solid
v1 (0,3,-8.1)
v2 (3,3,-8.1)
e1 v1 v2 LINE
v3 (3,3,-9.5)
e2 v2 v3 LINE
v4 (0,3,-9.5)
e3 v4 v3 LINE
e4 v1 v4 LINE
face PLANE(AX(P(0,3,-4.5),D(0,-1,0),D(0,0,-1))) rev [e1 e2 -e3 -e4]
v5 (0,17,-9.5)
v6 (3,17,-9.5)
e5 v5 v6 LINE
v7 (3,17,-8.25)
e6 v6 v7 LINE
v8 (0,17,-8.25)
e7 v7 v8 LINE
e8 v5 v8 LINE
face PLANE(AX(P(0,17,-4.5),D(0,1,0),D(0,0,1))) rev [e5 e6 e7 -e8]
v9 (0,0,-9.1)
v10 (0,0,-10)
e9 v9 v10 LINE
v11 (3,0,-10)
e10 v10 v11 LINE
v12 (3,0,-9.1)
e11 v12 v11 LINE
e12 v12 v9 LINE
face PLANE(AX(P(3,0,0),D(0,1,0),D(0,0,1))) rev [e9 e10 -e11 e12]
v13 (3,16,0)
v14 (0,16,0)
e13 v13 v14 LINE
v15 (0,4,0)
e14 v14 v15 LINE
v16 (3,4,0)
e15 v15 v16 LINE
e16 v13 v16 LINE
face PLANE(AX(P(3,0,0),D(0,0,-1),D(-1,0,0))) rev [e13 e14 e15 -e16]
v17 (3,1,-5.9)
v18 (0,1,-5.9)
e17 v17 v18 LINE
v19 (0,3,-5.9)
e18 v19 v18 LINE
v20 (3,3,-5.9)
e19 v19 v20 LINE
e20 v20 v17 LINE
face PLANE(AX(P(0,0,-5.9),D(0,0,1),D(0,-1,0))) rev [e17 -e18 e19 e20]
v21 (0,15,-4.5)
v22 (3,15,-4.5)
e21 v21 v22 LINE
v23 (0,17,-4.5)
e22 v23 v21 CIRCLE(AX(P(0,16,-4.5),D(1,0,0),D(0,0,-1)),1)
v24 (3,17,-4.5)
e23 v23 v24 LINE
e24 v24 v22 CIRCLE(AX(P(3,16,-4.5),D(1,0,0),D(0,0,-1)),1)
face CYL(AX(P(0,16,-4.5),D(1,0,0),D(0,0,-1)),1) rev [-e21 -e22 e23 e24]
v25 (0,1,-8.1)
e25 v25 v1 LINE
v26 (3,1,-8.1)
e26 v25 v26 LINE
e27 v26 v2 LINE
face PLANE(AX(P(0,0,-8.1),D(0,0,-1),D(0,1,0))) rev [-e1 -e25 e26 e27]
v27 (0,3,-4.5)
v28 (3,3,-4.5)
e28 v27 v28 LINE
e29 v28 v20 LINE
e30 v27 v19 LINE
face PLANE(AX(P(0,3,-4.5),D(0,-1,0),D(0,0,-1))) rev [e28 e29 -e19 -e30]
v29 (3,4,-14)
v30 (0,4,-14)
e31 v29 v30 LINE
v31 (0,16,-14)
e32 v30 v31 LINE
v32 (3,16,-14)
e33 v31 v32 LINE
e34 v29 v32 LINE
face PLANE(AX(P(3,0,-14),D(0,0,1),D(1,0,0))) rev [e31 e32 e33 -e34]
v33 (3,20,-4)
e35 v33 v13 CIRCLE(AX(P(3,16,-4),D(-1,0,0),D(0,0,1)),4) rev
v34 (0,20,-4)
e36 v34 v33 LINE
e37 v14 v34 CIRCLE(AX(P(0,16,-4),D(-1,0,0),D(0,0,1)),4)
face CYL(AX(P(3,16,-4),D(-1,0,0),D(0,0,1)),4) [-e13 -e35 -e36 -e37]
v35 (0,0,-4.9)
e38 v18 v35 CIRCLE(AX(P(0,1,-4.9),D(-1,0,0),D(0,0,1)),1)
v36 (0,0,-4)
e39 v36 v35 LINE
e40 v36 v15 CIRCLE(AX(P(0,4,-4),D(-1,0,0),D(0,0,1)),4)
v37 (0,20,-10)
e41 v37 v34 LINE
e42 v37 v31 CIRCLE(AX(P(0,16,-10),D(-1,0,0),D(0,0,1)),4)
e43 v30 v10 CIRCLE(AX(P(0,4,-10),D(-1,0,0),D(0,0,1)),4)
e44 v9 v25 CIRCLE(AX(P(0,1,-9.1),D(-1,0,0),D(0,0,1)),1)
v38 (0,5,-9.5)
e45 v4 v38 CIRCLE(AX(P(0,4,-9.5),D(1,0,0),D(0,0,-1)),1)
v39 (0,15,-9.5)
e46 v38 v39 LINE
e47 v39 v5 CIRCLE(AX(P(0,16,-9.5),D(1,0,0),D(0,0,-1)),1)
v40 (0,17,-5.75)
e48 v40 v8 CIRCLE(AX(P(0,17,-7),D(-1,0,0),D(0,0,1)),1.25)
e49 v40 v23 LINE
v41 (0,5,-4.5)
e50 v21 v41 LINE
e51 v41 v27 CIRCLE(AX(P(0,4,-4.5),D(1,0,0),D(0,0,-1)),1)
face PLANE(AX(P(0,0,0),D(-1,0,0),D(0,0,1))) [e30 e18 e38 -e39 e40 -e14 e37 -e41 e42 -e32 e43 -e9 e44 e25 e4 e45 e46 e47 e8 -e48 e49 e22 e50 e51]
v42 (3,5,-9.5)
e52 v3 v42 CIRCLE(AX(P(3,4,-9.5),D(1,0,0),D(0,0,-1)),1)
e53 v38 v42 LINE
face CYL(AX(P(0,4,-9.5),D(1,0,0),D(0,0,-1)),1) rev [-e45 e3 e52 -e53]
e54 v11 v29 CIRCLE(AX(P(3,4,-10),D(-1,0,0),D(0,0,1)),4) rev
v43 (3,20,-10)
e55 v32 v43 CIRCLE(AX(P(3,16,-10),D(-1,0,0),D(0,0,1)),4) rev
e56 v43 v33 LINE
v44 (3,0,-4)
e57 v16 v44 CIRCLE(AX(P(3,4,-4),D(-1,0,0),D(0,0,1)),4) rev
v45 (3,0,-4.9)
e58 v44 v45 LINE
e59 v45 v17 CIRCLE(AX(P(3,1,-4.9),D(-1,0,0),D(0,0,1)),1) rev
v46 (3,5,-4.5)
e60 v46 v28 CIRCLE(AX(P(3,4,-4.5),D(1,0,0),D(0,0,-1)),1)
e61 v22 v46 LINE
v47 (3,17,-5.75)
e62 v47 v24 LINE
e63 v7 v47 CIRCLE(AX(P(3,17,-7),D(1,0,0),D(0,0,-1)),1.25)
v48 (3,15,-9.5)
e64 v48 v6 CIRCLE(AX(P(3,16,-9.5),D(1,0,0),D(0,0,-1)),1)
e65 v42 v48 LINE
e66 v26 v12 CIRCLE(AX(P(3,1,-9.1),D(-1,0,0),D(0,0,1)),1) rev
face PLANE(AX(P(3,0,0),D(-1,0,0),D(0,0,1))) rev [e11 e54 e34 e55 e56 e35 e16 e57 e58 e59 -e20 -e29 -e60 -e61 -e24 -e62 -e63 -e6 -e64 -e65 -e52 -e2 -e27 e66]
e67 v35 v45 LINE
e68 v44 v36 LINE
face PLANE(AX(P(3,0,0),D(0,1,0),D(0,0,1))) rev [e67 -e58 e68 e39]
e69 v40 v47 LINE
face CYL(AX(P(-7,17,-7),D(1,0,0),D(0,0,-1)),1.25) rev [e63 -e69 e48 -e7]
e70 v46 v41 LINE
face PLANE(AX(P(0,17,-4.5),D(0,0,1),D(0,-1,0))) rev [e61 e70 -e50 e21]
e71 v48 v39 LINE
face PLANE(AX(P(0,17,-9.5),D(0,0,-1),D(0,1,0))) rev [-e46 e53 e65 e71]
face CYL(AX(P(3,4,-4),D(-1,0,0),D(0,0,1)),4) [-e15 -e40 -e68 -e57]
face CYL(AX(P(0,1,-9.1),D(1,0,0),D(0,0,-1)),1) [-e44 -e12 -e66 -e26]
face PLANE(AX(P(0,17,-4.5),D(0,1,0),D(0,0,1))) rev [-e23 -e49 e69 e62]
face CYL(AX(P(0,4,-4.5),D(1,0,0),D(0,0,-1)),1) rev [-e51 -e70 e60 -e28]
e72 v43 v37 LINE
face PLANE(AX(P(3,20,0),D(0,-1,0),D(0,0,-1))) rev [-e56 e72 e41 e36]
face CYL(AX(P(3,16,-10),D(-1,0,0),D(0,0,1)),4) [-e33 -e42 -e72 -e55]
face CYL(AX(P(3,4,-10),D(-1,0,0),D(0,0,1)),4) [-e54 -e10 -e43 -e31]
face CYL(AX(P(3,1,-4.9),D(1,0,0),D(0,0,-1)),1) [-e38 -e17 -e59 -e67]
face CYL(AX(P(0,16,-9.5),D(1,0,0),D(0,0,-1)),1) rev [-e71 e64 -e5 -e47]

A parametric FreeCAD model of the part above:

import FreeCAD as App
import Part
import Sketcher
from FreeCAD import Vector
Q = App.Units.Quantity


def edges_at(feature, points):
    """Names of the edges that pass closest to the given points."""
    edges = feature.Shape.Edges
    near = lambda p: min(range(len(edges)), key=lambda i: edges[i].distToShape(Part.Vertex(*p))[0])
    return sorted({f"Edge{near(p) + 1}" for p in points})

doc = App.newDocument("Part")
body = doc.addObject("PartDesign::Body", "Body")

sketch1 = body.newObject("Sketcher::SketchObject", "Sketch")
sketch1.AttachmentSupport = (doc.getObject("YZ_Plane"), [""])
sketch1.MapMode = "FlatFace"
sketch1.addGeometry([
    Part.LineSegment(Vector(20, 0, 0), Vector(0, 0, 0)),
    Part.LineSegment(Vector(0, 0, 0), Vector(0, -14, 0)),
    Part.LineSegment(Vector(0, -14, 0), Vector(20, -14, 0)),
    Part.LineSegment(Vector(20, -14, 0), Vector(20, 0, 0)),
], False)
sketch1.addConstraint([
    Sketcher.Constraint("Coincident", 0, 2, 1, 1),
    Sketcher.Constraint("Coincident", 1, 2, 2, 1),
    Sketcher.Constraint("Coincident", 2, 2, 3, 1),
    Sketcher.Constraint("Coincident", 3, 2, 0, 1),
    Sketcher.Constraint("Horizontal", 0),
    Sketcher.Constraint("Vertical", 1),
    Sketcher.Constraint("Horizontal", 2),
    Sketcher.Constraint("Vertical", 3),
    Sketcher.Constraint("Coincident", 0, 2, -1, 1),
    Sketcher.Constraint("DistanceX", 0, 2, 0, 1, Q("20 mm")),
    Sketcher.Constraint("DistanceY", 1, 2, 1, 1, Q("14 mm")),
])
pad1 = body.newObject("PartDesign::Pad", "Pad")
pad1.Profile = sketch1
pad1.Length = 3

sketch2 = body.newObject("Sketcher::SketchObject", "Sketch001")
sketch2.AttachmentSupport = (doc.getObject("YZ_Plane"), [""])
sketch2.MapMode = "FlatFace"
sketch2.AttachmentOffset = App.Placement(Vector(0, 0, 3), App.Rotation())
sketch2.addGeometry([
    Part.LineSegment(Vector(17, -4, 0), Vector(3, -4, 0)),
    Part.LineSegment(Vector(3, -4, 0), Vector(3, -10, 0)),
    Part.LineSegment(Vector(3, -10, 0), Vector(17, -10, 0)),
    Part.LineSegment(Vector(17, -10, 0), Vector(17, -4, 0)),
], False)
sketch2.addConstraint([
    Sketcher.Constraint("Coincident", 0, 2, 1, 1),
    Sketcher.Constraint("Coincident", 1, 2, 2, 1),
    Sketcher.Constraint("Coincident", 2, 2, 3, 1),
    Sketcher.Constraint("Coincident", 3, 2, 0, 1),
    Sketcher.Constraint("Horizontal", 0),
    Sketcher.Constraint("Vertical", 1),
    Sketcher.Constraint("Horizontal", 2),
    Sketcher.Constraint("Vertical", 3),
    Sketcher.Constraint("DistanceX", 0, 2, 0, 1, Q("14 mm")),
    Sketcher.Constraint("DistanceY", 1, 2, 1, 1, Q("5 mm")),
    Sketcher.Constraint("DistanceX", -1, 1, 0, 2, Q("3 mm")),
    Sketcher.Constraint("DistanceY", 0, 2, -1, 1, Q("4.5 mm")),
])
pocket1 = body.newObject("PartDesign::Pocket", "Pocket")
pocket1.Profile = sketch2
pocket1.Length = 3

sketch3 = body.newObject("Sketcher::SketchObject", "Sketch002")
sketch3.AttachmentSupport = (doc.getObject("YZ_Plane"), [""])
sketch3.MapMode = "FlatFace"
sketch3.AttachmentOffset = App.Placement(Vector(0, 0, 3), App.Rotation())
sketch3.addGeometry([
    Part.Circle(Vector(16, -9.5, 0), Vector(0, 0, 1), 1),
    Part.Circle(Vector(16, -4.5, 0), Vector(0, 0, 1), 1),
    Part.Circle(Vector(4, -4.5, 0), Vector(0, 0, 1), 1),
    Part.Circle(Vector(4, -9.5, 0), Vector(0, 0, 1), 1),
], False)
sketch3.addConstraint([
    Sketcher.Constraint("Equal", 0, 1),
    Sketcher.Constraint("Equal", 1, 2),
    Sketcher.Constraint("Equal", 2, 3),
    Sketcher.Constraint("Horizontal", 1, 3, 2, 3),
    Sketcher.Constraint("Horizontal", 0, 3, 3, 3),
    Sketcher.Constraint("Vertical", 0, 3, 1, 3),
    Sketcher.Constraint("Vertical", 2, 3, 3, 3),
    Sketcher.Constraint("Diameter", 0, Q("2 mm")),
    Sketcher.Constraint("DistanceX", -1, 1, 0, 3, Q("16 mm")),
    Sketcher.Constraint("DistanceX", -1, 1, 2, 3, Q("4 mm")),
    Sketcher.Constraint("DistanceY", 0, 3, 1, 3, Q("5 mm")),
    Sketcher.Constraint("DistanceY", 0, 3, -1, 1, Q("9.5 mm")),
])
pocket2 = body.newObject("PartDesign::Pocket", "Pocket001")
pocket2.Profile = sketch3
pocket2.Length = 3

sketch4 = body.newObject("Sketcher::SketchObject", "Sketch003")
sketch4.AttachmentSupport = (doc.getObject("YZ_Plane"), [""])
sketch4.MapMode = "FlatFace"
sketch4.AttachmentOffset = App.Placement(Vector(0, 0, 3), App.Rotation())
sketch4.addGeometry([
    Part.LineSegment(Vector(3, -5.9, 0), Vector(0, -5.9, 0)),
    Part.LineSegment(Vector(0, -5.9, 0), Vector(0, -8.1, 0)),
    Part.LineSegment(Vector(0, -8.1, 0), Vector(3, -8.1, 0)),
    Part.LineSegment(Vector(3, -8.1, 0), Vector(3, -5.9, 0)),
], False)
sketch4.addConstraint([
    Sketcher.Constraint("Coincident", 0, 2, 1, 1),
    Sketcher.Constraint("Coincident", 1, 2, 2, 1),
    Sketcher.Constraint("Coincident", 2, 2, 3, 1),
    Sketcher.Constraint("Coincident", 3, 2, 0, 1),
    Sketcher.Constraint("Horizontal", 0),
    Sketcher.Constraint("Vertical", 1),
    Sketcher.Constraint("Horizontal", 2),
    Sketcher.Constraint("Vertical", 3),
    Sketcher.Constraint("PointOnObject", 0, 2, -2),
    Sketcher.Constraint("DistanceX", 0, 2, 0, 1, Q("3 mm")),
    Sketcher.Constraint("DistanceY", 1, 2, 1, 1, Q("2.2 mm")),
    Sketcher.Constraint("DistanceY", 0, 2, -1, 1, Q("5.9 mm")),
])
pocket3 = body.newObject("PartDesign::Pocket", "Pocket002")
pocket3.Profile = sketch4
pocket3.Length = 3
doc.recompute()

fillet = body.newObject("PartDesign::Fillet", "Fillet")
fillet.Base = (pocket3, edges_at(pocket3, [
    (1.5, 20, 0),
    (1.5, 20, -14),
    (1.5, 0, -14),
    (1.5, 0, 0),
]))
fillet.Radius = 4
doc.recompute()

fillet2 = body.newObject("PartDesign::Fillet", "Fillet001")
fillet2.Base = (fillet, edges_at(fillet, [(1.5, 0, -8.1), (1.5, 0, -5.9)]))
fillet2.Radius = 1

sketch5 = body.newObject("Sketcher::SketchObject", "Sketch004")
sketch5.AttachmentSupport = (doc.getObject("YZ_Plane"), [""])
sketch5.MapMode = "FlatFace"
sketch5.AttachmentOffset = App.Placement(Vector(0, 0, 3), App.Rotation())
sketch5.addGeometry(Part.Circle(Vector(17, -7, 0), Vector(0, 0, 1), 1.2), False)
sketch5.addConstraint([
    Sketcher.Constraint("Diameter", 0, Q("2.5 mm")),
    Sketcher.Constraint("DistanceX", -1, 1, 0, 3, Q("17 mm")),
    Sketcher.Constraint("DistanceY", 0, 3, -1, 1, Q("7 mm")),
])
pocket4 = body.newObject("PartDesign::Pocket", "Pocket003")
pocket4.Profile = sketch5
pocket4.Length = 10

doc.recompute()
